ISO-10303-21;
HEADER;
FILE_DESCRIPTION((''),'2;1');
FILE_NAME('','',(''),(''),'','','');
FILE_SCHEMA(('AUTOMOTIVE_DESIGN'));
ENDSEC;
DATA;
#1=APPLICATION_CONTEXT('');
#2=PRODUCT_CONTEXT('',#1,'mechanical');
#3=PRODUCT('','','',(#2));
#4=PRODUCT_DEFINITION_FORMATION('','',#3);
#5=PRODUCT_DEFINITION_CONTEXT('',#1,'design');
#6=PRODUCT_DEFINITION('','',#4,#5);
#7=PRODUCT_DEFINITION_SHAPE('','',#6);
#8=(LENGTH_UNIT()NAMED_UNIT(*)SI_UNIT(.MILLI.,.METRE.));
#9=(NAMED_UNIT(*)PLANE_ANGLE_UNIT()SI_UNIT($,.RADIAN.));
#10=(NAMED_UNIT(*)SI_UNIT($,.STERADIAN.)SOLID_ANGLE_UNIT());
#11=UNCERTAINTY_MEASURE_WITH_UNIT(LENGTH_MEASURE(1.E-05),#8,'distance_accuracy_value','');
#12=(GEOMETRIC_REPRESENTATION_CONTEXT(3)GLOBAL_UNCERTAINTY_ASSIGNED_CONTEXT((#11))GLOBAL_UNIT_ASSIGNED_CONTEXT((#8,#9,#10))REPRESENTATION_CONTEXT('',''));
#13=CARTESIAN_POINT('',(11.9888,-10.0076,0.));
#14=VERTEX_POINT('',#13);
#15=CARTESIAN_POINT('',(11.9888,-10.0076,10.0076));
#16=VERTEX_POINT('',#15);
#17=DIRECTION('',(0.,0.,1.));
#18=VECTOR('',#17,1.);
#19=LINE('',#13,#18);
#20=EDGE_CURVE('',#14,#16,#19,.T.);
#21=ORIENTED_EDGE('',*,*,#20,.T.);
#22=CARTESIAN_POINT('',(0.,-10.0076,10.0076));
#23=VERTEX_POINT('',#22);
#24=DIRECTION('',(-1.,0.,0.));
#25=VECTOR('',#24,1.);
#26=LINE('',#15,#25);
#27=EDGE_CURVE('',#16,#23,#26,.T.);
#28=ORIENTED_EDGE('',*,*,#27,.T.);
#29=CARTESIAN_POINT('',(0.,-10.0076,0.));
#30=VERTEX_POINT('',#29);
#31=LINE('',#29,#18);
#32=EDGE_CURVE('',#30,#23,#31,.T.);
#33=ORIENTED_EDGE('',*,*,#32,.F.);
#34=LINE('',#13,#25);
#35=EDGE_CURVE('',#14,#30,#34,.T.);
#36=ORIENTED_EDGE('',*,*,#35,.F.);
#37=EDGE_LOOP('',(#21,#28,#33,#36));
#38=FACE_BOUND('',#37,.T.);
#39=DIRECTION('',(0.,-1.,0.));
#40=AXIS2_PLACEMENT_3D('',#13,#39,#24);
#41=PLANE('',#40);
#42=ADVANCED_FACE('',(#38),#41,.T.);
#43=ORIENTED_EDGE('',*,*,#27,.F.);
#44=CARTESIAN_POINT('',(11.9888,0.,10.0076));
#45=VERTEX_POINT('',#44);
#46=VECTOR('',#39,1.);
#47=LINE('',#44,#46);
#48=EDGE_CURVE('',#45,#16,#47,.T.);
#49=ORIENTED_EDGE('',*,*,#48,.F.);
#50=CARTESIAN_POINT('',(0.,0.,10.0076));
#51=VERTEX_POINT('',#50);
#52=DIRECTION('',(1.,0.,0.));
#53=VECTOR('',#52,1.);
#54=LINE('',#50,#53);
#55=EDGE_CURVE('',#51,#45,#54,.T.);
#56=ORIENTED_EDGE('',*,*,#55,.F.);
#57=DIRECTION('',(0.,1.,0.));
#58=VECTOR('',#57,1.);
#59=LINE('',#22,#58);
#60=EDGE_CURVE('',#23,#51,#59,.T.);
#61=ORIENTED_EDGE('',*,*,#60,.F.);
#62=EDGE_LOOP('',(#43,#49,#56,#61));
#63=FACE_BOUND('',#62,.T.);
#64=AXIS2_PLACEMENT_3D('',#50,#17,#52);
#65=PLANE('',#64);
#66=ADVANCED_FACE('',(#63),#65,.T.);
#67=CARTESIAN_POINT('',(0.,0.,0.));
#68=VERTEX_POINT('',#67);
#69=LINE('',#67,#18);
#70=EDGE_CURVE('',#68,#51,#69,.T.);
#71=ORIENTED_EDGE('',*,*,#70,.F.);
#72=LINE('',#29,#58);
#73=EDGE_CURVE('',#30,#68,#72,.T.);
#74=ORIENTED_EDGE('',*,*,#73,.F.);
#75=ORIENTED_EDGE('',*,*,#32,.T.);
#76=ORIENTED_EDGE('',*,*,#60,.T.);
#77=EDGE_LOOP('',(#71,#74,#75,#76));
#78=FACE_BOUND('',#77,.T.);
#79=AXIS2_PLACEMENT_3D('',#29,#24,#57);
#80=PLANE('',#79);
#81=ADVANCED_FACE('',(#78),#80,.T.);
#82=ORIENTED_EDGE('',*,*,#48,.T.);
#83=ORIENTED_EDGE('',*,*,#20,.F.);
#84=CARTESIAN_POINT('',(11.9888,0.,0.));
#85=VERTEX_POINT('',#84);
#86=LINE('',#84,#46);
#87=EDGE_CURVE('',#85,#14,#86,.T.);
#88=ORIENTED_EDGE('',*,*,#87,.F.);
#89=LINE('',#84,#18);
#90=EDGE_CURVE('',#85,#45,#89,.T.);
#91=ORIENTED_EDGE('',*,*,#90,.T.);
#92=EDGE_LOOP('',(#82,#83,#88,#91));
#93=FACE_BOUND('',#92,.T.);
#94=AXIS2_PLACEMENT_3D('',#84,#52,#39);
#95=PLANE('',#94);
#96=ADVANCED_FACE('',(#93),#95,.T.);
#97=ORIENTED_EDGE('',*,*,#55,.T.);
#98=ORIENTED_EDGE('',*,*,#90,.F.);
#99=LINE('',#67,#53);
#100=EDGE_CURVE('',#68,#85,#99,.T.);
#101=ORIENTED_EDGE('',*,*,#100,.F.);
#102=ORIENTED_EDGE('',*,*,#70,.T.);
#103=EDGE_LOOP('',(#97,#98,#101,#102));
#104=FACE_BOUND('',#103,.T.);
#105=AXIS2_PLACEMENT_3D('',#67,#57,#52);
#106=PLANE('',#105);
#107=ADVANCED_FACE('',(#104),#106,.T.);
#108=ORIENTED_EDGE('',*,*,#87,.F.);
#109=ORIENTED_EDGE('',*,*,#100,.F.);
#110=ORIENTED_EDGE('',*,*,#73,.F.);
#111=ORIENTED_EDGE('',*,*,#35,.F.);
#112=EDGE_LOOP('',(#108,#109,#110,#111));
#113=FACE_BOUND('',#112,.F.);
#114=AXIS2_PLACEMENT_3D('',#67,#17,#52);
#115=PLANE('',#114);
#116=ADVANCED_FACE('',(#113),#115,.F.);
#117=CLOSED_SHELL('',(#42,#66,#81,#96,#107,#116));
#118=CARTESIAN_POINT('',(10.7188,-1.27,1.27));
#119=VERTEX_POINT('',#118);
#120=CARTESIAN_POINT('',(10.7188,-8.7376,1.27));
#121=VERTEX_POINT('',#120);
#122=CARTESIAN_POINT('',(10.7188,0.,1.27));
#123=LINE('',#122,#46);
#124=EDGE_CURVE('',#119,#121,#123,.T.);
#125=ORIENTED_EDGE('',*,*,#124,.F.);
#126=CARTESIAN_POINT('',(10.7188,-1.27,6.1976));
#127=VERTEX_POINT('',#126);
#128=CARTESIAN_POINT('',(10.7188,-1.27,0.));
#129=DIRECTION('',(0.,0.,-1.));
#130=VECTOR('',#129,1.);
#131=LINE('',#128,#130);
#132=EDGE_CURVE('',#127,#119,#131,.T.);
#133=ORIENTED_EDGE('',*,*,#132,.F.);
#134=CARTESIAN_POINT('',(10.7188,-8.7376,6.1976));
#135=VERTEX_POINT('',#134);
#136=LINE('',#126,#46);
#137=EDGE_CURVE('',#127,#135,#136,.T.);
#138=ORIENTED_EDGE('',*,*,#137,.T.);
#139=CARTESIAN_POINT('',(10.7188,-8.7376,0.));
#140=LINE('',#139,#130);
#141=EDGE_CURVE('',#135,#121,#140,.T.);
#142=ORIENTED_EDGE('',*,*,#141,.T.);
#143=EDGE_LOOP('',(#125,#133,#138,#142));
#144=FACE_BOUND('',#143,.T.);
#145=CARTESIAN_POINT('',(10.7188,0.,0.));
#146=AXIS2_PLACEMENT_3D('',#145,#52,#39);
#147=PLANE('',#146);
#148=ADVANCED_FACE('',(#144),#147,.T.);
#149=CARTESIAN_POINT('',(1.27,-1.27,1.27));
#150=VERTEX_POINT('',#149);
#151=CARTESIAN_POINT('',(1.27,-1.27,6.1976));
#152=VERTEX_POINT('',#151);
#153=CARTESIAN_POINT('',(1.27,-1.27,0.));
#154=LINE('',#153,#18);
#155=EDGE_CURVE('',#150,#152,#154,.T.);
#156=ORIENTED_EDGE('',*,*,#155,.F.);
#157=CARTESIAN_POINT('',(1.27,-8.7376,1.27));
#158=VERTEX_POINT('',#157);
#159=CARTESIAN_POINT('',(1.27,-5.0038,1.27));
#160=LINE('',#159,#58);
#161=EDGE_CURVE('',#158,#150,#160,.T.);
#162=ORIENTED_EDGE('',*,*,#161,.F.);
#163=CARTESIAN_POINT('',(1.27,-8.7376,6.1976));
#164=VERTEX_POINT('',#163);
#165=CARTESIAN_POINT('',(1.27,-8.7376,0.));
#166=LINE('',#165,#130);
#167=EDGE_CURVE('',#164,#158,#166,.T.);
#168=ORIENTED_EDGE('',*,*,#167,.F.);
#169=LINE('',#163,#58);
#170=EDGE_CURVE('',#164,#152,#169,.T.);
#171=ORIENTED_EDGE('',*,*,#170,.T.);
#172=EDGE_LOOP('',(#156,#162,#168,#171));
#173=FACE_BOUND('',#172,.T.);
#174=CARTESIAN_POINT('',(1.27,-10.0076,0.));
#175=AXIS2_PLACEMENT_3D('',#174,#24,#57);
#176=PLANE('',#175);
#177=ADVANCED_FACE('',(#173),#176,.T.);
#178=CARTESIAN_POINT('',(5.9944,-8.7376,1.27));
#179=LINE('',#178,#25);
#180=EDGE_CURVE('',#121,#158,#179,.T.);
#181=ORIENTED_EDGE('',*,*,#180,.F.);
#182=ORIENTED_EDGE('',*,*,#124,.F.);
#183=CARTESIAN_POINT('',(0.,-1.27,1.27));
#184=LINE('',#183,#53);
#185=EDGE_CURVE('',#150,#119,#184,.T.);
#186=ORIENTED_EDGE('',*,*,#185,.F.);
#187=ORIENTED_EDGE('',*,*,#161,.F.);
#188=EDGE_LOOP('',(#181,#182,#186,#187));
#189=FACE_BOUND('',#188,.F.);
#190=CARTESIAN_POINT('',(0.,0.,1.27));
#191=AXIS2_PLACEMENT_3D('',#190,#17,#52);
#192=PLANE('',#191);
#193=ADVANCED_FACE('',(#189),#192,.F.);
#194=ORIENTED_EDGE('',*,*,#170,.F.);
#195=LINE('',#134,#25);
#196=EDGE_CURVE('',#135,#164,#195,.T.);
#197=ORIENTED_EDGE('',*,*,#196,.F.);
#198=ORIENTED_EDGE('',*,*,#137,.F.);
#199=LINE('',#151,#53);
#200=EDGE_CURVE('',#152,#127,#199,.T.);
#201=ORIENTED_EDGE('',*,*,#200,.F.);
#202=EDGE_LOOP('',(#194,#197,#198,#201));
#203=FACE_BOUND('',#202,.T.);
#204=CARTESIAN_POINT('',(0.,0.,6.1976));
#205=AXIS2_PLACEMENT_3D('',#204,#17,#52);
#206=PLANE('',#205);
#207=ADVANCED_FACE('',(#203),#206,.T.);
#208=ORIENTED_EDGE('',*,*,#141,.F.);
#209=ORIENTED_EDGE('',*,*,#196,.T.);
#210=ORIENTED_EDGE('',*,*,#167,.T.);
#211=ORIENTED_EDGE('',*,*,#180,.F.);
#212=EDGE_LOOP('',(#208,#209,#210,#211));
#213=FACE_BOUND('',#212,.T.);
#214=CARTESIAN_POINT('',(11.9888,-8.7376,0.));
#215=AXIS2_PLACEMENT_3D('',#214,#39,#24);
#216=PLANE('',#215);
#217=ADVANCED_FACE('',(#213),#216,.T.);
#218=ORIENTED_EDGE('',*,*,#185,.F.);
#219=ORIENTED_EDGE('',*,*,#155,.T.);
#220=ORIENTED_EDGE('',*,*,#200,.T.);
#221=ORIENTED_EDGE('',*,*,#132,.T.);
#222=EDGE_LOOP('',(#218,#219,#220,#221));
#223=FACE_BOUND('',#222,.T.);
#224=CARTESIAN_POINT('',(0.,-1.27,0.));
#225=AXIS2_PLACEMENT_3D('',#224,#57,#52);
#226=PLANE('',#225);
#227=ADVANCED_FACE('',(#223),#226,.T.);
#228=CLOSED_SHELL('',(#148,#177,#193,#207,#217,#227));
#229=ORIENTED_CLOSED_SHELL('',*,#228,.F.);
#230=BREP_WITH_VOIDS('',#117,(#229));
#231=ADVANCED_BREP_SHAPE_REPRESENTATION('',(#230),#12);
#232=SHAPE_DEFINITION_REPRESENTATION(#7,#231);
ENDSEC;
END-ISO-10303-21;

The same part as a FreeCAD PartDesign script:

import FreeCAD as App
import Part
import Sketcher
from FreeCAD import Vector
Q = App.Units.Quantity


def faces_at(feature, points):
    """Names of the faces that lie closest to the given points."""
    faces = feature.Shape.Faces
    near = lambda p: min(range(len(faces)), key=lambda i: faces[i].distToShape(Part.Vertex(*p))[0])
    return sorted({f"Face{near(p) + 1}" for p in points})


def add_polygon(sketch, points):
    """Adds a closed chain of lines whose ends are joined by coincident constraints."""
    first, n = sketch.GeometryCount, len(points)
    for a, b in zip(points, points[1:] + points[:1]):
        sketch.addGeometry(Part.LineSegment(App.Vector(*a, 0), App.Vector(*b, 0)), False)
    for i in range(n):
        sketch.addConstraint(Sketcher.Constraint("Coincident", first + i, 2, first + (i + 1) % n, 1))

doc = App.newDocument("Part")
body = doc.addObject("PartDesign::Body", "Body")

# Sketch on XY plane
sketch1 = doc.addObject("Sketcher::SketchObject", "Sketch")
body.addObject(sketch1)
sketch1.AttachmentSupport = (doc.XY_Plane, [""])
sketch1.MapMode = "FlatFace"
add_polygon(sketch1, [(12, 0), (0, 0), (0, -10), (12, -10)])  # lines 0-3
sketch1.addConstraint([
    Sketcher.Constraint("Horizontal", 0),
    Sketcher.Constraint("Vertical", 1),
    Sketcher.Constraint("Horizontal", 2),
    Sketcher.Constraint("Vertical", 3),
    Sketcher.Constraint("Coincident", 0, 2, -1, 1),
    Sketcher.Constraint("DistanceX", 0, 2, 0, 1, Q("0.472 in")),
    Sketcher.Constraint("DistanceY", 1, 2, 1, 1, Q("0.394 in")),
])
pad1 = doc.addObject("PartDesign::Pad", "Pad")
body.addObject(pad1)
pad1.Profile = sketch1
pad1.Length = Q("0.394 in")
doc.recompute()

thickness = doc.addObject("PartDesign::Thickness", "Thickness")
body.addObject(thickness)
thickness.Base = (pad1, faces_at(pad1, [(3.996, -6.672, 10.008)]))
thickness.Value = Q("0.05 in")
thickness.Reversed = True
thickness.Join = "Intersection"

# Sketch on XY plane
sketch2 = doc.addObject("Sketcher::SketchObject", "Sketch001")
body.addObject(sketch2)
sketch2.AttachmentSupport = (doc.XY_Plane, [""])
sketch2.MapMode = "FlatFace"
sketch2.AttachmentOffset = App.Placement(Vector(0, 0, 0.394 * 25.4), App.Rotation())
add_polygon(sketch2, [(11, -1), (1, -1), (1, -9), (11, -9)])  # lines 0-3
sketch2.addConstraint([
    Sketcher.Constraint("Horizontal", 0),
    Sketcher.Constraint("Vertical", 1),
    Sketcher.Constraint("Horizontal", 2),
    Sketcher.Constraint("Vertical", 3),
    Sketcher.Constraint("DistanceX", 0, 2, 0, 1, Q("0.372 in")),
    Sketcher.Constraint("DistanceY", 1, 2, 1, 1, Q("0.294 in")),
    Sketcher.Constraint("DistanceX", -1, 1, 0, 2, Q("0.05 in")),
    Sketcher.Constraint("DistanceY", 0, 2, -1, 1, Q("0.05 in")),
])
pad2 = doc.addObject("PartDesign::Pad", "Pad001")
body.addObject(pad2)
pad2.Profile = sketch2
pad2.Length = Q("0.15 in")
pad2.Reversed = True

doc.recompute()
